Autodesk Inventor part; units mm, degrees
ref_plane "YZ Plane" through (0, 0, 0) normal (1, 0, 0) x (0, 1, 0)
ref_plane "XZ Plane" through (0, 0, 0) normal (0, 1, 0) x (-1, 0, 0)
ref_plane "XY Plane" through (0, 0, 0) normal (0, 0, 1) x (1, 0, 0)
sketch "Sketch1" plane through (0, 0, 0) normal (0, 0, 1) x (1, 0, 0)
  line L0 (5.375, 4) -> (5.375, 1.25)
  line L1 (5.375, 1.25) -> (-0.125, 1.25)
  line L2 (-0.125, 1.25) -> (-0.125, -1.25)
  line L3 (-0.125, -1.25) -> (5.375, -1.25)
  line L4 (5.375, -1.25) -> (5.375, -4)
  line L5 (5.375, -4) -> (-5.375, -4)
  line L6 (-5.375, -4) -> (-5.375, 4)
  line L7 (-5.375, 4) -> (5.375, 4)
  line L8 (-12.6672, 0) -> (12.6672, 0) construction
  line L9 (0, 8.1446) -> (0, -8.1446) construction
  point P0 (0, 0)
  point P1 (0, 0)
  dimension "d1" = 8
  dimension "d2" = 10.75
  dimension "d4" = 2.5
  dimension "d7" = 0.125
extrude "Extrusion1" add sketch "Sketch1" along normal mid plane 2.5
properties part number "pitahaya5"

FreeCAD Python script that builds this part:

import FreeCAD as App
import Part
import Sketcher

V = App.Vector


def add_polygon(sketch, points):
    """Adds a closed chain of lines whose ends are joined by coincident constraints."""
    first, n = sketch.GeometryCount, len(points)
    for a, b in zip(points, points[1:] + points[:1]):
        sketch.addGeometry(Part.LineSegment(App.Vector(*a, 0), App.Vector(*b, 0)), False)
    for i in range(n):
        sketch.addConstraint(Sketcher.Constraint("Coincident", first + i, 2, first + (i + 1) % n, 1))

doc = App.newDocument("Part")
params = doc.addObject("Spreadsheet::Sheet", "Params")
for row, (alias, value) in enumerate([
    ("sketch1_height", "8 mm"),
    ("sketch1_height2", "2.5 mm"),
    ("sketch1_width", "10.75 mm"),
    ("sketch1_width2", "5.5 mm"),
    ("pad1_length", "2.5 mm"),
], start=1):
    params.set(f"A{row}", alias)
    params.set(f"B{row}", "=" + value)
    params.setAlias(f"B{row}", alias)

body = doc.addObject("PartDesign::Body", "Body")

# Sketch on XY plane
sketch1 = body.newObject("Sketcher::SketchObject", "Sketch")
sketch1.AttachmentSupport = (doc.getObject("XY_Plane"), [""])
sketch1.MapMode = "FlatFace"
add_polygon(sketch1, [(5.4, 1.2), (5.4, 4), (-5.4, 4), (-5.4, -4), (5.4, -4), (5.4, -1.2), (-0.1, -1.2), (-0.1, 1.2)])  # lines 0-7
sketch1.addConstraint(Sketcher.Constraint("Vertical", 0))
sketch1.addConstraint(Sketcher.Constraint("Horizontal", 1))
sketch1.addConstraint(Sketcher.Constraint("Vertical", 2))
sketch1.addConstraint(Sketcher.Constraint("Horizontal", 3))
sketch1.addConstraint(Sketcher.Constraint("Vertical", 4))
sketch1.addConstraint(Sketcher.Constraint("Horizontal", 5))
sketch1.addConstraint(Sketcher.Constraint("Vertical", 6))
sketch1.addConstraint(Sketcher.Constraint("Horizontal", 7))
sketch1.addConstraint(Sketcher.Constraint("Symmetric", 0, 2, 2, 2, -1, 1))
sketch1.addConstraint(Sketcher.Constraint("Symmetric", 4, 2, 7, 2, -1))
sketch1.addConstraint(Sketcher.Constraint("DistanceY", 2, 2, 2, 1, 8.0))
sketch1.addConstraint(Sketcher.Constraint("DistanceY", 6, 1, 6, 2, 2.5))
sketch1.addConstraint(Sketcher.Constraint("DistanceX", 1, 2, 1, 1, 10.75))
sketch1.addConstraint(Sketcher.Constraint("DistanceX", 5, 2, 5, 1, 5.5))
sketch1.setExpression("Constraints[18]", "Params.sketch1_height")
sketch1.setExpression("Constraints[19]", "Params.sketch1_height2")
sketch1.setExpression("Constraints[20]", "Params.sketch1_width")
sketch1.setExpression("Constraints[21]", "Params.sketch1_width2")
pad1 = body.newObject("PartDesign::Pad", "Pad")
pad1.Profile = sketch1
pad1.setExpression("Length", "Params.pad1_length")
pad1.Midplane = True

doc.recompute()
